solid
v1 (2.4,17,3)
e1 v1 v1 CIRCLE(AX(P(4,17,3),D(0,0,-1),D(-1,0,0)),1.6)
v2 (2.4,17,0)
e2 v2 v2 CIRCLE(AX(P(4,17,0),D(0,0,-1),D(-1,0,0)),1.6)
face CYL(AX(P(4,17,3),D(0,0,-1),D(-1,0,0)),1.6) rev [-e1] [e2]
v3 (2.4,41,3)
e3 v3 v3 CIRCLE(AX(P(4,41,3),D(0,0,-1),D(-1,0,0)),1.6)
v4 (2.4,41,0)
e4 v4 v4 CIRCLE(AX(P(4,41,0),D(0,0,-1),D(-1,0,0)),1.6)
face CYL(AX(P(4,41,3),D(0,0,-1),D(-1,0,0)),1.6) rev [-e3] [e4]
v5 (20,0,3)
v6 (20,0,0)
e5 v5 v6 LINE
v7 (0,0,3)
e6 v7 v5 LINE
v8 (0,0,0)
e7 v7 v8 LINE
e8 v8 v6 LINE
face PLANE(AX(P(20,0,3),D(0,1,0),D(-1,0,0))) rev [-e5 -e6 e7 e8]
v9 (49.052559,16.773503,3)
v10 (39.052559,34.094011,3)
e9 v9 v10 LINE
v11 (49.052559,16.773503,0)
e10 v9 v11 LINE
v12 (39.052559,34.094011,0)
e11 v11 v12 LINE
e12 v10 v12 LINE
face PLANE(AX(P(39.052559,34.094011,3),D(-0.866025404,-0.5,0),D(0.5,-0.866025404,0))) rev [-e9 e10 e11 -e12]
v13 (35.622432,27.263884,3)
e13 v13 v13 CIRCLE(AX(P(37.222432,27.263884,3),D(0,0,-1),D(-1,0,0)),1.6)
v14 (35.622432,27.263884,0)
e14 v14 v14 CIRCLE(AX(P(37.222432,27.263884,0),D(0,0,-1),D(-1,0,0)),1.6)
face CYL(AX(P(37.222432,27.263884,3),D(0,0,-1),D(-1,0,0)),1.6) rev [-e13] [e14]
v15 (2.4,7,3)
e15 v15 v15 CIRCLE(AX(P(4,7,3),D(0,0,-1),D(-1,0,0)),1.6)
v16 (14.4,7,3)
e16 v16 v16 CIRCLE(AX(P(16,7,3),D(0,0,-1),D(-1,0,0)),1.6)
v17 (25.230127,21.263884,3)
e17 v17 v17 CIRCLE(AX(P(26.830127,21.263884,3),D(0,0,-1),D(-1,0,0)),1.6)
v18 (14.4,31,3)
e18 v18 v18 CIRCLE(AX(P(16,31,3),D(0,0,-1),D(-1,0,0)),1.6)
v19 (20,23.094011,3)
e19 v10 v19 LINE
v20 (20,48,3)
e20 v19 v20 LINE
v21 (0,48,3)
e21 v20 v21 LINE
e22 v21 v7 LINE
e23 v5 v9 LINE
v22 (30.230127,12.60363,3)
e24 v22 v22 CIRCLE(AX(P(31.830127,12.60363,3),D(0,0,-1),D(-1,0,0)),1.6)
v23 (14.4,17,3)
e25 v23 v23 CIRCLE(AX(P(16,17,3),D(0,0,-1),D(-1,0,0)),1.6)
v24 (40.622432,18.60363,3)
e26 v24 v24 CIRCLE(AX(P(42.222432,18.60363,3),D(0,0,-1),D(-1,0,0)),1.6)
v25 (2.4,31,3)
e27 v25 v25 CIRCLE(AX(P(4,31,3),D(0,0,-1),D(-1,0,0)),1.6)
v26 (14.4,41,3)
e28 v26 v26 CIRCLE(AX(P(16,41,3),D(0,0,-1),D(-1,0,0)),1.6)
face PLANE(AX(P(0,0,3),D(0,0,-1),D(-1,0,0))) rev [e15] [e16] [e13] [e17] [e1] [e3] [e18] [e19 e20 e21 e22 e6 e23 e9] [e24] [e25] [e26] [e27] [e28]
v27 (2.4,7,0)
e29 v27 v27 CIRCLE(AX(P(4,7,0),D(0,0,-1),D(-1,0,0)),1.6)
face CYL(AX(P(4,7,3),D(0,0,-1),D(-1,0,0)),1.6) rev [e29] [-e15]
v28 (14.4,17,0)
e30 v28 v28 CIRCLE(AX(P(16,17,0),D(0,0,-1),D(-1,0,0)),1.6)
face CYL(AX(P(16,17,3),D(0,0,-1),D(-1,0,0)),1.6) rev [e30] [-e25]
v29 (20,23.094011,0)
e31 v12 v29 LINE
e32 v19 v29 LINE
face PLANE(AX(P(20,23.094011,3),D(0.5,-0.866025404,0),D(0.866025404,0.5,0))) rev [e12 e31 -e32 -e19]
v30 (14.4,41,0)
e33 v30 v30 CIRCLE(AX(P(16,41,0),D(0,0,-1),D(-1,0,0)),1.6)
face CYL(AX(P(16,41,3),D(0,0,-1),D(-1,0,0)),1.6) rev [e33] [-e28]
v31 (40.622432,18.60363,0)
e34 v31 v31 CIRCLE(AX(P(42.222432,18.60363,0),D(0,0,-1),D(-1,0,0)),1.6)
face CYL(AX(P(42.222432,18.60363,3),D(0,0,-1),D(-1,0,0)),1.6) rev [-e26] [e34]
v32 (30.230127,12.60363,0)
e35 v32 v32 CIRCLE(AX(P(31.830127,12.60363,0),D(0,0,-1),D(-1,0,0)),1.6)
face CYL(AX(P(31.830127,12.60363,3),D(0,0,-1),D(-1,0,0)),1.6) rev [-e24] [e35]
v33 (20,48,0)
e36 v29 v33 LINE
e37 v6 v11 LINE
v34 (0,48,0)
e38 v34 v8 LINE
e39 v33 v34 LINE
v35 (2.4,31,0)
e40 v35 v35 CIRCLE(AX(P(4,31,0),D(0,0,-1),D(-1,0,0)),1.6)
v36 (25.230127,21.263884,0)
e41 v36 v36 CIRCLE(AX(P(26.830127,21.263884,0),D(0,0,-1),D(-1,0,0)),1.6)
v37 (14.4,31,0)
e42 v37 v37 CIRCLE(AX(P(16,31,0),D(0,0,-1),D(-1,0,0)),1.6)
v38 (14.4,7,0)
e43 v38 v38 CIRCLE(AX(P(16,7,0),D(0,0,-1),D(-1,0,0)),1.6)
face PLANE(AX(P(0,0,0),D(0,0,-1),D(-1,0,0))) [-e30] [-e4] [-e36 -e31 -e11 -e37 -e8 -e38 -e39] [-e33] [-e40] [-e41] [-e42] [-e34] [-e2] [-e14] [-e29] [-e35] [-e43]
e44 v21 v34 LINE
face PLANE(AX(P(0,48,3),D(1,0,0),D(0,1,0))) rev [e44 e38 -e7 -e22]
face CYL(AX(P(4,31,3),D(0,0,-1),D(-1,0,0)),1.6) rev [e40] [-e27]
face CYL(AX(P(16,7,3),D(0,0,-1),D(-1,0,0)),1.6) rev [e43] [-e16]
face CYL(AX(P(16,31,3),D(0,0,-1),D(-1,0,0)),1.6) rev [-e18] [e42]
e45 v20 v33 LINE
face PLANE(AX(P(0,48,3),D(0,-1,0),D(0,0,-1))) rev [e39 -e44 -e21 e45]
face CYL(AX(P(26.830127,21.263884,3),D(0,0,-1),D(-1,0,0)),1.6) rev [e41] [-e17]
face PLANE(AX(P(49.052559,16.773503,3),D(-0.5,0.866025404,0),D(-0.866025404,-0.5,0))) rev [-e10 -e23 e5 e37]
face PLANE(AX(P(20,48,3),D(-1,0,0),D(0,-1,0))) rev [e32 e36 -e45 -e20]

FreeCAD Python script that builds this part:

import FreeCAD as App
import Part
import Sketcher
from FreeCAD import Vector
Q = App.Units.Quantity

doc = App.newDocument("Part")
body = doc.addObject("PartDesign::Body", "Body")

# Sketch on XY plane
sketch1 = body.newObject("Sketcher::SketchObject", "Sketch")
sketch1.AttachmentSupport = (doc.getObject("XY_Plane"), [""])
sketch1.MapMode = "FlatFace"
sketch1.addGeometry([
    Part.LineSegment(Vector(0, 48, 0), Vector(0, 0, 0)),  # 0
    Part.LineSegment(Vector(0, 0, 0), Vector(20, 0, 0)),  # 1
    Part.LineSegment(Vector(20, 0, 0), Vector(49, 17, 0)),  # 2
    Part.LineSegment(Vector(49, 17, 0), Vector(39, 34, 0)),  # 3
    Part.LineSegment(Vector(39, 34, 0), Vector(20, 23, 0)),  # 4
    Part.LineSegment(Vector(20, 23, 0), Vector(20, 48, 0)),  # 5
    Part.LineSegment(Vector(20, 48, 0), Vector(0, 48, 0)),  # 6
], False)
sketch1.addConstraint([
    Sketcher.Constraint("Coincident", 0, 2, 1, 1),
    Sketcher.Constraint("Coincident", 1, 2, 2, 1),
    Sketcher.Constraint("Coincident", 2, 2, 3, 1),
    Sketcher.Constraint("Coincident", 3, 2, 4, 1),
    Sketcher.Constraint("Coincident", 4, 2, 5, 1),
    Sketcher.Constraint("Coincident", 5, 2, 6, 1),
    Sketcher.Constraint("Coincident", 6, 2, 0, 1),
    Sketcher.Constraint("Vertical", 0),
    Sketcher.Constraint("Horizontal", 1),
    Sketcher.Constraint("Vertical", 5),
    Sketcher.Constraint("Horizontal", 6),
    Sketcher.Constraint("Coincident", 0, 2, -1, 1),
    Sketcher.Constraint("Perpendicular", 2, 3),
    Sketcher.Constraint("Perpendicular", 3, 4),
    Sketcher.Constraint("Vertical", 1, 2, 4, 2),
    Sketcher.Constraint("DistanceX", 1, 1, 1, 2, 20.0),
    Sketcher.Constraint("DistanceY", 0, 2, 0, 1, 48.0),
    Sketcher.Constraint("Angle", 2, Q("30 deg")),
    Sketcher.Constraint("Distance", 3, 20.0),
    Sketcher.Constraint("Distance", 4, 22.0),
])
pad1 = body.newObject("PartDesign::Pad", "Pad")
pad1.Profile = sketch1
pad1.Length = 3

# Sketch on XY plane
sketch2 = body.newObject("Sketcher::SketchObject", "Sketch001")
sketch2.AttachmentSupport = (doc.getObject("XY_Plane"), [""])
sketch2.MapMode = "FlatFace"
sketch2.addGeometry([
    Part.Circle(Vector(42.2, 18.6, 0), Vector(0, 0, 1), 1.6),  # 0
    Part.Circle(Vector(37.2, 27.3, 0), Vector(0, 0, 1), 1.6),  # 1
    Part.Circle(Vector(26.8, 21.3, 0), Vector(0, 0, 1), 1.6),  # 2
    Part.Circle(Vector(31.8, 12.6, 0), Vector(0, 0, 1), 1.6),  # 3
    Part.Circle(Vector(16, 7, 0), Vector(0, 0, 1), 1.6),  # 4
    Part.Circle(Vector(16, 17, 0), Vector(0, 0, 1), 1.6),  # 5
    Part.Circle(Vector(4, 7, 0), Vector(0, 0, 1), 1.6),  # 6
    Part.Circle(Vector(4, 17, 0), Vector(0, 0, 1), 1.6),  # 7
    Part.Circle(Vector(16, 31, 0), Vector(0, 0, 1), 1.6),  # 8
    Part.Circle(Vector(16, 41, 0), Vector(0, 0, 1), 1.6),  # 9
    Part.Circle(Vector(4, 31, 0), Vector(0, 0, 1), 1.6),  # 10
    Part.Circle(Vector(4, 41, 0), Vector(0, 0, 1), 1.6),  # 11
], False)
sketch2.addConstraint([
    Sketcher.Constraint("Equal", 0, 1),
    Sketcher.Constraint("Equal", 1, 2),
    Sketcher.Constraint("Equal", 2, 3),
    Sketcher.Constraint("Equal", 3, 4),
    Sketcher.Constraint("Equal", 4, 5),
    Sketcher.Constraint("Equal", 5, 6),
    Sketcher.Constraint("Equal", 6, 7),
    Sketcher.Constraint("Equal", 7, 8),
    Sketcher.Constraint("Equal", 8, 9),
    Sketcher.Constraint("Equal", 9, 10),
    Sketcher.Constraint("Equal", 10, 11),
    Sketcher.Constraint("Horizontal", 4, 3, 6, 3),
    Sketcher.Constraint("Horizontal", 5, 3, 7, 3),
    Sketcher.Constraint("Horizontal", 8, 3, 10, 3),
    Sketcher.Constraint("Horizontal", 9, 3, 11, 3),
    Sketcher.Constraint("Vertical", 4, 3, 5, 3),
    Sketcher.Constraint("Vertical", 6, 3, 7, 3),
    Sketcher.Constraint("Vertical", 5, 3, 8, 3),
    Sketcher.Constraint("Vertical", 8, 3, 9, 3),
    Sketcher.Constraint("Vertical", 7, 3, 10, 3),
    Sketcher.Constraint("Vertical", 10, 3, 11, 3),
    Sketcher.Constraint("Diameter", 0, 3.2),
    Sketcher.Constraint("DistanceX", -1, 1, 4, 3, 16.0),
    Sketcher.Constraint("DistanceY", -1, 1, 4, 3, 7.0),
    Sketcher.Constraint("DistanceY", -1, 1, 5, 3, 17.0),
    Sketcher.Constraint("DistanceX", -1, 1, 6, 3, 4.0),
    Sketcher.Constraint("DistanceY", -1, 1, 8, 3, 31.0),
    Sketcher.Constraint("DistanceY", -1, 1, 9, 3, 41.0),
    Sketcher.Constraint("DistanceX", 1, 3, 0, 3, 5.0),
    Sketcher.Constraint("DistanceY", 2, 3, 1, 3, 6.0),
    Sketcher.Constraint("DistanceX", 2, 3, 3, 3, 5.0),
    Sketcher.Constraint("DistanceY", 3, 3, 0, 3, 6.0),
    Sketcher.Constraint("DistanceX", -1, 1, 0, 3, 42.222432),
    Sketcher.Constraint("DistanceY", -1, 1, 0, 3, 18.60363),
    Sketcher.Constraint("DistanceY", -1, 1, 1, 3, 27.263884),
    Sketcher.Constraint("DistanceX", -1, 1, 2, 3, 26.830127),
])
pocket1 = body.newObject("PartDesign::Pocket", "Pocket")
pocket1.Profile = sketch2
pocket1.Length = 3
pocket1.Reversed = True

doc.recompute()
